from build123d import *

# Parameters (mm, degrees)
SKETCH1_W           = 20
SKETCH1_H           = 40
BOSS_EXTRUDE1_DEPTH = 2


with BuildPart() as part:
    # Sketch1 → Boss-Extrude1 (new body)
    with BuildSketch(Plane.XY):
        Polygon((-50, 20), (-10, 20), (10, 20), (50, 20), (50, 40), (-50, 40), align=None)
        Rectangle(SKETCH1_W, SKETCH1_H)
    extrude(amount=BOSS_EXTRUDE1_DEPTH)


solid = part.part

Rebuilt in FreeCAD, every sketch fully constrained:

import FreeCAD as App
import Part
import Sketcher
Q = App.Units.Quantity


def add_polygon(sketch, points):
    """Adds a closed chain of lines whose ends are joined by coincident constraints."""
    first, n = sketch.GeometryCount, len(points)
    for a, b in zip(points, points[1:] + points[:1]):
        sketch.addGeometry(Part.LineSegment(App.Vector(*a, 0), App.Vector(*b, 0)), False)
    for i in range(n):
        sketch.addConstraint(Sketcher.Constraint("Coincident", first + i, 2, first + (i + 1) % n, 1))

doc = App.newDocument("Part")
body = doc.addObject("PartDesign::Body", "Body")

# Sketch on XY plane
sketch1 = body.newObject("Sketcher::SketchObject", "Sketch")
sketch1.AttachmentSupport = (doc.getObject("XY_Plane"), [""])
sketch1.MapMode = "FlatFace"
add_polygon(sketch1, [(-50, 20), (-10, 20), (-10, -20), (10, -20), (10, 20), (50, 20), (50, 40), (-50, 40)])  # lines 0-7
sketch1.addConstraint([
    Sketcher.Constraint("Horizontal", 0),
    Sketcher.Constraint("Vertical", 1),
    Sketcher.Constraint("Horizontal", 2),
    Sketcher.Constraint("Vertical", 3),
    Sketcher.Constraint("Horizontal", 4),
    Sketcher.Constraint("Vertical", 5),
    Sketcher.Constraint("Horizontal", 6),
    Sketcher.Constraint("Vertical", 7),
    Sketcher.Constraint("Symmetric", 0, 2, 2, 2, -1, 1),
    Sketcher.Constraint("Symmetric", 4, 2, 7, 2, -2),
    Sketcher.Constraint("Equal", 4, 1),
    Sketcher.Constraint("Equal", 2, 5),
    Sketcher.Constraint("DistanceX", 0, 1, 0, 2, Q("40 mm")),
    Sketcher.Constraint("DistanceX", 2, 1, 2, 2, Q("20 mm")),
])
pad1 = body.newObject("PartDesign::Pad", "Pad")
pad1.Profile = sketch1
pad1.Length = 2

doc.recompute()
